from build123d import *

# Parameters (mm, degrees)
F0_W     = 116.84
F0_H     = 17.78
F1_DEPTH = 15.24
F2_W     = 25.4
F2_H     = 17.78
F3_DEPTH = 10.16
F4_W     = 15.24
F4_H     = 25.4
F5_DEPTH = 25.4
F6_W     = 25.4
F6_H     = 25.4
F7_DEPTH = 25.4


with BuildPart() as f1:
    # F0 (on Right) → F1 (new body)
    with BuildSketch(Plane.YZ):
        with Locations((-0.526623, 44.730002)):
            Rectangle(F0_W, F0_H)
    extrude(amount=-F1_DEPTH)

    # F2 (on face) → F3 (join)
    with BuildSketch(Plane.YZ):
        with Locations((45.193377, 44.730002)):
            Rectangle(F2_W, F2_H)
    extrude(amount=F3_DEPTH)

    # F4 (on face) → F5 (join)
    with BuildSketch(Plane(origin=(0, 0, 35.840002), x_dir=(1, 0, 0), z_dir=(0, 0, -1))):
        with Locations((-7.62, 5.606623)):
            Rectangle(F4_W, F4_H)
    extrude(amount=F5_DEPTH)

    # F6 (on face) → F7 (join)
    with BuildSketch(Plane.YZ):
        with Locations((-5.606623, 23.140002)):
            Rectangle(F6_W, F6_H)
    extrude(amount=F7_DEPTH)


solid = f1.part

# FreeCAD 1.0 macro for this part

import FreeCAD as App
import Part
import Sketcher
Q = App.Units.Quantity


def add_polygon(sketch, points):
    """Adds a closed chain of lines whose ends are joined by coincident constraints."""
    first, n = sketch.GeometryCount, len(points)
    for a, b in zip(points, points[1:] + points[:1]):
        sketch.addGeometry(Part.LineSegment(App.Vector(*a, 0), App.Vector(*b, 0)), False)
    for i in range(n):
        sketch.addConstraint(Sketcher.Constraint("Coincident", first + i, 2, first + (i + 1) % n, 1))

doc = App.newDocument("Part")
body = doc.addObject("PartDesign::Body", "Body")

sketch1 = body.newObject("Sketcher::SketchObject", "Sketch")
sketch1.AttachmentSupport = (doc.getObject("YZ_Plane"), [""])
sketch1.MapMode = "FlatFace"
add_polygon(sketch1, [(-59, 54), (-59, 36), (58, 36), (58, 54)])
sketch1.addConstraint([
    Sketcher.Constraint("Vertical", 0),
    Sketcher.Constraint("Horizontal", 1),
    Sketcher.Constraint("Vertical", 2),
    Sketcher.Constraint("Horizontal", 3),
    Sketcher.Constraint("DistanceX", 1, 1, 1, 2, Q("4.6 in")),
    Sketcher.Constraint("DistanceY", 0, 2, 0, 1, Q("0.7 in")),
    Sketcher.Constraint("DistanceY", -1, 1, 0, 2, Q("35.840002 mm")),
    Sketcher.Constraint("DistanceX", 0, 2, -1, 1, Q("58.946623 mm")),
])
pad1 = body.newObject("PartDesign::Pad", "Pad")
pad1.Profile = sketch1
pad1.Length = Q("0.6 in")
pad1.Reversed = True

sketch2 = body.newObject("Sketcher::SketchObject", "Sketch001")
sketch2.AttachmentSupport = (doc.getObject("YZ_Plane"), [""])
sketch2.MapMode = "FlatFace"
add_polygon(sketch2, [(32, 54), (32, 36), (58, 36), (58, 54)])
sketch2.addConstraint([
    Sketcher.Constraint("Vertical", 0),
    Sketcher.Constraint("Horizontal", 1),
    Sketcher.Constraint("Vertical", 2),
    Sketcher.Constraint("Horizontal", 3),
    Sketcher.Constraint("DistanceX", 1, 1, 1, 2, Q("1 in")),
    Sketcher.Constraint("DistanceY", 0, 2, 0, 1, Q("0.7 in")),
    Sketcher.Constraint("DistanceY", -1, 1, 0, 2, Q("35.840002 mm")),
    Sketcher.Constraint("DistanceX", -1, 1, 0, 2, Q("32.493377 mm")),
])
pad2 = body.newObject("PartDesign::Pad", "Pad001")
pad2.Profile = sketch2
pad2.Length = Q("0.4 in")

sketch3 = body.newObject("Sketcher::SketchObject", "Sketch002")
sketch3.AttachmentSupport = (doc.getObject("XY_Plane"), [""])
sketch3.MapMode = "FlatFace"
sketch3.AttachmentOffset = App.Placement(App.Vector(0, 0, 35.840002), App.Rotation())
add_polygon(sketch3, [(-15, -18), (-15, 7), (0, 7), (0, -18)])
sketch3.addConstraint([
    Sketcher.Constraint("Vertical", 0),
    Sketcher.Constraint("Horizontal", 1),
    Sketcher.Constraint("Vertical", 2),
    Sketcher.Constraint("Horizontal", 3),
    Sketcher.Constraint("PointOnObject", 1, 2, -2),
    Sketcher.Constraint("DistanceY", 0, 1, 0, 2, Q("1 in")),
    Sketcher.Constraint("DistanceX", 1, 1, 1, 2, Q("0.6 in")),
    Sketcher.Constraint("DistanceY", -1, 1, 0, 2, Q("7.093377 mm")),
])
pad3 = body.newObject("PartDesign::Pad", "Pad002")
pad3.Profile = sketch3
pad3.Length = Q("1 in")
pad3.Reversed = True

sketch4 = body.newObject("Sketcher::SketchObject", "Sketch003")
sketch4.AttachmentSupport = (doc.getObject("YZ_Plane"), [""])
sketch4.MapMode = "FlatFace"
add_polygon(sketch4, [(-18, 36), (-18, 10), (7, 10), (7, 36)])
sketch4.addConstraint([
    Sketcher.Constraint("Vertical", 0),
    Sketcher.Constraint("Horizontal", 1),
    Sketcher.Constraint("Vertical", 2),
    Sketcher.Constraint("Horizontal", 3),
    Sketcher.Constraint("Equal", 3, 0),
    Sketcher.Constraint("DistanceX", 1, 1, 1, 2, Q("1 in")),
    Sketcher.Constraint("DistanceY", -1, 1, 2, 2, Q("35.840002 mm")),
    Sketcher.Constraint("DistanceX", 0, 2, -1, 1, Q("18.306623 mm")),
])
pad4 = body.newObject("PartDesign::Pad", "Pad003")
pad4.Profile = sketch4
pad4.Length = Q("1 in")

doc.recompute()
